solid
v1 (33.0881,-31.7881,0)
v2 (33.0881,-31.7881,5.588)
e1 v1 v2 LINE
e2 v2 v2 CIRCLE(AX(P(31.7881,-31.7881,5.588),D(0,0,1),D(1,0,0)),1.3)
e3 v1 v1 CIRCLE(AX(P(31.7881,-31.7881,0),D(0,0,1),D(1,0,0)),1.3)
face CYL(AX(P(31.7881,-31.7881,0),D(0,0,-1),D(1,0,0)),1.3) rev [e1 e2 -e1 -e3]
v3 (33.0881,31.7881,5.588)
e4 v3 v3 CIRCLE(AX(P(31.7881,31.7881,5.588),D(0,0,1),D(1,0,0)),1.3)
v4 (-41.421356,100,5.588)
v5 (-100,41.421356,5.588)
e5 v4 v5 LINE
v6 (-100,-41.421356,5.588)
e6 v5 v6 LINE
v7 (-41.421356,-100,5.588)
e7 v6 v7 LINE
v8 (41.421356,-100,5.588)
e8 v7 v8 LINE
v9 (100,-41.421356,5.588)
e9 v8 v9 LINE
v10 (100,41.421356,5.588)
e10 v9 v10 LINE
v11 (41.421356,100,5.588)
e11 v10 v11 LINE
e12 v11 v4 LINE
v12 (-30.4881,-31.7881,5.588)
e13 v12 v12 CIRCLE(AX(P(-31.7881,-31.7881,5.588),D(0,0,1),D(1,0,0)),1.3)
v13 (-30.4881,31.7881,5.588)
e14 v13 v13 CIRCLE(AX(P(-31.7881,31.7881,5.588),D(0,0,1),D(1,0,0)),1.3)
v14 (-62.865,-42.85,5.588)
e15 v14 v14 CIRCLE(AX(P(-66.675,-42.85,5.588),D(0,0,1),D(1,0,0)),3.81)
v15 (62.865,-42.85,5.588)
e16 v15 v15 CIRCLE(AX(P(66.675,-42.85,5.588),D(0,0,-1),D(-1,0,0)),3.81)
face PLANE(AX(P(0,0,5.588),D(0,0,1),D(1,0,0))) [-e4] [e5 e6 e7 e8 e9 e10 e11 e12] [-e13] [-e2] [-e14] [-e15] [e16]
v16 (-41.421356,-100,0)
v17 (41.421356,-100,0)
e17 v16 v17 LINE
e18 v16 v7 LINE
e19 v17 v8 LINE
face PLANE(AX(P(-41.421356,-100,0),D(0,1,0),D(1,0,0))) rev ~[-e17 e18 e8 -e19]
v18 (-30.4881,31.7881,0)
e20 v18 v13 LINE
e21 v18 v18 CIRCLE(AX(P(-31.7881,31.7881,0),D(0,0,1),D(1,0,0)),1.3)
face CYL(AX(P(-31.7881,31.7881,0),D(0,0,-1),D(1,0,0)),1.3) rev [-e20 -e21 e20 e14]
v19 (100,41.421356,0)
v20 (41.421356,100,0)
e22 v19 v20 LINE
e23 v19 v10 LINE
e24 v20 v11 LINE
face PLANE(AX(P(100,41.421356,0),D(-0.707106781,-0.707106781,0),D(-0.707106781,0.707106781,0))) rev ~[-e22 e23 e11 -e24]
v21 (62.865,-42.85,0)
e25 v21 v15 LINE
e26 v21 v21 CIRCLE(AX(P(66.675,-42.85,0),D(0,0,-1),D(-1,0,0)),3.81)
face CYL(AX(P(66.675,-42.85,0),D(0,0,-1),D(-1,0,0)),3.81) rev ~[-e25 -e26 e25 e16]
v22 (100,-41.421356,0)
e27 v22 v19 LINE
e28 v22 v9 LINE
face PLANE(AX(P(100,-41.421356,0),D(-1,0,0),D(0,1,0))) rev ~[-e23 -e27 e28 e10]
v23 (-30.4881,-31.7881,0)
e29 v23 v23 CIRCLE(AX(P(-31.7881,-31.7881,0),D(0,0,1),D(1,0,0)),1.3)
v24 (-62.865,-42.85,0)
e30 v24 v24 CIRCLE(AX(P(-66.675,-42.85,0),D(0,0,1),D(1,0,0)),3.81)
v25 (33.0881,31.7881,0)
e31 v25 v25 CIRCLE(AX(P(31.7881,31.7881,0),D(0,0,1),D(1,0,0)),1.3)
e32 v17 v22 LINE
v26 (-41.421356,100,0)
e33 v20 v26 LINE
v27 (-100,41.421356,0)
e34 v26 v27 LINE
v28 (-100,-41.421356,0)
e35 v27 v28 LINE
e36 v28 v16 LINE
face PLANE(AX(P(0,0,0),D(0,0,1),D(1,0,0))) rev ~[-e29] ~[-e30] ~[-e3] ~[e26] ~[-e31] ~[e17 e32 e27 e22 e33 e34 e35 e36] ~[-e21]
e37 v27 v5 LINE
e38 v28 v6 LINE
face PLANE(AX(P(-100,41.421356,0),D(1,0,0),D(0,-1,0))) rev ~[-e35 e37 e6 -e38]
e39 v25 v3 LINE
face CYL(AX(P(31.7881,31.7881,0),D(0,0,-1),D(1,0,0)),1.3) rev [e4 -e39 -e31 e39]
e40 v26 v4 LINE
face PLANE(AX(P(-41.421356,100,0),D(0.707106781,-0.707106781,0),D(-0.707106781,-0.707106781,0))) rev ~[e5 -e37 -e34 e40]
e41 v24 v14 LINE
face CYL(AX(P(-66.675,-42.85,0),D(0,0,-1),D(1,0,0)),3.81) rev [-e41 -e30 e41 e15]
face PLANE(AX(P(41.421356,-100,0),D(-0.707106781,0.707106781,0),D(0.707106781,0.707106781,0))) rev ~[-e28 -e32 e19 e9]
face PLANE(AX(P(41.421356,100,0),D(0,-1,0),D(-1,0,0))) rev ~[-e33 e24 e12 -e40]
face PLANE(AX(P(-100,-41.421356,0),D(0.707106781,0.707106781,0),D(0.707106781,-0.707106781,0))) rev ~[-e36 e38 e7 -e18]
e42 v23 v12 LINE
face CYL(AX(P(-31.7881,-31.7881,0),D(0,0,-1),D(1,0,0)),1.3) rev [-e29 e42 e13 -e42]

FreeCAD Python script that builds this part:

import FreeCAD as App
import Part
import Sketcher

V = App.Vector
Q = App.Units.Quantity

doc = App.newDocument("Part")
body = doc.addObject("PartDesign::Body", "Body")

sketch1 = body.newObject("Sketcher::SketchObject", "Sketch")
sketch1.AttachmentSupport = (doc.getObject("XY_Plane"), [""])
sketch1.MapMode = "FlatFace"
sketch1.addGeometry([
    Part.LineSegment(V(41.4, 100, 0), V(-41.4, 100, 0)),
    Part.LineSegment(V(-41.4, 100, 0), V(-100, 41.4, 0)),
    Part.LineSegment(V(-100, 41.4, 0), V(-100, -41.4, 0)),
    Part.LineSegment(V(-100, -41.4, 0), V(-41.4, -100, 0)),
    Part.LineSegment(V(-41.4, -100, 0), V(41.4, -100, 0)),
    Part.LineSegment(V(41.4, -100, 0), V(100, -41.4, 0)),
    Part.LineSegment(V(100, -41.4, 0), V(100, 41.4, 0)),
    Part.LineSegment(V(100, 41.4, 0), V(41.4, 100, 0)),
    Part.Circle(V(-66.7, -42.9, 0), V(0, 0, 1), 3.8),
    Part.Circle(V(-31.8, -31.8, 0), V(0, 0, 1), 1.3),
    Part.Circle(V(31.8, -31.8, 0), V(0, 0, 1), 1.3),
    Part.Circle(V(66.7, -42.9, 0), V(0, 0, 1), 3.8),
    Part.Circle(V(-31.8, 31.8, 0), V(0, 0, 1), 1.3),
    Part.Circle(V(31.8, 31.8, 0), V(0, 0, 1), 1.3),
], False)
sketch1.addConstraint([
    Sketcher.Constraint("Coincident", 0, 2, 1, 1),
    Sketcher.Constraint("Coincident", 1, 2, 2, 1),
    Sketcher.Constraint("Coincident", 2, 2, 3, 1),
    Sketcher.Constraint("Coincident", 3, 2, 4, 1),
    Sketcher.Constraint("Coincident", 4, 2, 5, 1),
    Sketcher.Constraint("Coincident", 5, 2, 6, 1),
    Sketcher.Constraint("Coincident", 6, 2, 7, 1),
    Sketcher.Constraint("Coincident", 7, 2, 0, 1),
    Sketcher.Constraint("Horizontal", 0),
    Sketcher.Constraint("Vertical", 2),
    Sketcher.Constraint("Horizontal", 4),
    Sketcher.Constraint("Vertical", 6),
    Sketcher.Constraint("Equal", 9, 10),
    Sketcher.Constraint("Equal", 8, 11),
    Sketcher.Constraint("Equal", 10, 12),
    Sketcher.Constraint("Equal", 12, 13),
    Sketcher.Constraint("Symmetric", 10, 3, 12, 3, -1, 1),
    Sketcher.Constraint("Symmetric", 9, 3, 13, 3, -1, 1),
    Sketcher.Constraint("Symmetric", 0, 2, 4, 2, -1, 1),
    Sketcher.Constraint("Symmetric", 1, 2, 5, 2, -1, 1),
    Sketcher.Constraint("Symmetric", 9, 3, 10, 3, -2),
    Sketcher.Constraint("Symmetric", 8, 3, 11, 3, -2),
    Sketcher.Constraint("Perpendicular", 1, 3),
    Sketcher.Constraint("Perpendicular", 5, 7),
    Sketcher.Constraint("Horizontal", 2, 2, 5, 2),
    Sketcher.Constraint("Horizontal", 1, 2, 6, 2),
    Sketcher.Constraint("Vertical", 0, 2, 3, 2),
    Sketcher.Constraint("Equal", 4, 2),
    Sketcher.Constraint("Diameter", 8, Q("0.3 in")),
    Sketcher.Constraint("Diameter", 9, Q("2.6 mm")),
    Sketcher.Constraint("DistanceX", 8, 3, 11, 3, Q("5.25 in")),
    Sketcher.Constraint("DistanceY", 3, 2, 8, 3, Q("2.25 in")),
    Sketcher.Constraint("DistanceX", 9, 3, 10, 3, Q("2.503 in")),
    Sketcher.Constraint("DistanceY", 9, 3, 12, 3, Q("2.503 in")),
    Sketcher.Constraint("DistanceY", 8, 3, -1, 1, Q("42.85 mm")),
    Sketcher.Constraint("DistanceX", 0, 2, 0, 1, Q("82.842712 mm")),
])
pad1 = body.newObject("PartDesign::Pad", "Pad")
pad1.Profile = sketch1
pad1.Length = Q("0.22 in")

doc.recompute()
